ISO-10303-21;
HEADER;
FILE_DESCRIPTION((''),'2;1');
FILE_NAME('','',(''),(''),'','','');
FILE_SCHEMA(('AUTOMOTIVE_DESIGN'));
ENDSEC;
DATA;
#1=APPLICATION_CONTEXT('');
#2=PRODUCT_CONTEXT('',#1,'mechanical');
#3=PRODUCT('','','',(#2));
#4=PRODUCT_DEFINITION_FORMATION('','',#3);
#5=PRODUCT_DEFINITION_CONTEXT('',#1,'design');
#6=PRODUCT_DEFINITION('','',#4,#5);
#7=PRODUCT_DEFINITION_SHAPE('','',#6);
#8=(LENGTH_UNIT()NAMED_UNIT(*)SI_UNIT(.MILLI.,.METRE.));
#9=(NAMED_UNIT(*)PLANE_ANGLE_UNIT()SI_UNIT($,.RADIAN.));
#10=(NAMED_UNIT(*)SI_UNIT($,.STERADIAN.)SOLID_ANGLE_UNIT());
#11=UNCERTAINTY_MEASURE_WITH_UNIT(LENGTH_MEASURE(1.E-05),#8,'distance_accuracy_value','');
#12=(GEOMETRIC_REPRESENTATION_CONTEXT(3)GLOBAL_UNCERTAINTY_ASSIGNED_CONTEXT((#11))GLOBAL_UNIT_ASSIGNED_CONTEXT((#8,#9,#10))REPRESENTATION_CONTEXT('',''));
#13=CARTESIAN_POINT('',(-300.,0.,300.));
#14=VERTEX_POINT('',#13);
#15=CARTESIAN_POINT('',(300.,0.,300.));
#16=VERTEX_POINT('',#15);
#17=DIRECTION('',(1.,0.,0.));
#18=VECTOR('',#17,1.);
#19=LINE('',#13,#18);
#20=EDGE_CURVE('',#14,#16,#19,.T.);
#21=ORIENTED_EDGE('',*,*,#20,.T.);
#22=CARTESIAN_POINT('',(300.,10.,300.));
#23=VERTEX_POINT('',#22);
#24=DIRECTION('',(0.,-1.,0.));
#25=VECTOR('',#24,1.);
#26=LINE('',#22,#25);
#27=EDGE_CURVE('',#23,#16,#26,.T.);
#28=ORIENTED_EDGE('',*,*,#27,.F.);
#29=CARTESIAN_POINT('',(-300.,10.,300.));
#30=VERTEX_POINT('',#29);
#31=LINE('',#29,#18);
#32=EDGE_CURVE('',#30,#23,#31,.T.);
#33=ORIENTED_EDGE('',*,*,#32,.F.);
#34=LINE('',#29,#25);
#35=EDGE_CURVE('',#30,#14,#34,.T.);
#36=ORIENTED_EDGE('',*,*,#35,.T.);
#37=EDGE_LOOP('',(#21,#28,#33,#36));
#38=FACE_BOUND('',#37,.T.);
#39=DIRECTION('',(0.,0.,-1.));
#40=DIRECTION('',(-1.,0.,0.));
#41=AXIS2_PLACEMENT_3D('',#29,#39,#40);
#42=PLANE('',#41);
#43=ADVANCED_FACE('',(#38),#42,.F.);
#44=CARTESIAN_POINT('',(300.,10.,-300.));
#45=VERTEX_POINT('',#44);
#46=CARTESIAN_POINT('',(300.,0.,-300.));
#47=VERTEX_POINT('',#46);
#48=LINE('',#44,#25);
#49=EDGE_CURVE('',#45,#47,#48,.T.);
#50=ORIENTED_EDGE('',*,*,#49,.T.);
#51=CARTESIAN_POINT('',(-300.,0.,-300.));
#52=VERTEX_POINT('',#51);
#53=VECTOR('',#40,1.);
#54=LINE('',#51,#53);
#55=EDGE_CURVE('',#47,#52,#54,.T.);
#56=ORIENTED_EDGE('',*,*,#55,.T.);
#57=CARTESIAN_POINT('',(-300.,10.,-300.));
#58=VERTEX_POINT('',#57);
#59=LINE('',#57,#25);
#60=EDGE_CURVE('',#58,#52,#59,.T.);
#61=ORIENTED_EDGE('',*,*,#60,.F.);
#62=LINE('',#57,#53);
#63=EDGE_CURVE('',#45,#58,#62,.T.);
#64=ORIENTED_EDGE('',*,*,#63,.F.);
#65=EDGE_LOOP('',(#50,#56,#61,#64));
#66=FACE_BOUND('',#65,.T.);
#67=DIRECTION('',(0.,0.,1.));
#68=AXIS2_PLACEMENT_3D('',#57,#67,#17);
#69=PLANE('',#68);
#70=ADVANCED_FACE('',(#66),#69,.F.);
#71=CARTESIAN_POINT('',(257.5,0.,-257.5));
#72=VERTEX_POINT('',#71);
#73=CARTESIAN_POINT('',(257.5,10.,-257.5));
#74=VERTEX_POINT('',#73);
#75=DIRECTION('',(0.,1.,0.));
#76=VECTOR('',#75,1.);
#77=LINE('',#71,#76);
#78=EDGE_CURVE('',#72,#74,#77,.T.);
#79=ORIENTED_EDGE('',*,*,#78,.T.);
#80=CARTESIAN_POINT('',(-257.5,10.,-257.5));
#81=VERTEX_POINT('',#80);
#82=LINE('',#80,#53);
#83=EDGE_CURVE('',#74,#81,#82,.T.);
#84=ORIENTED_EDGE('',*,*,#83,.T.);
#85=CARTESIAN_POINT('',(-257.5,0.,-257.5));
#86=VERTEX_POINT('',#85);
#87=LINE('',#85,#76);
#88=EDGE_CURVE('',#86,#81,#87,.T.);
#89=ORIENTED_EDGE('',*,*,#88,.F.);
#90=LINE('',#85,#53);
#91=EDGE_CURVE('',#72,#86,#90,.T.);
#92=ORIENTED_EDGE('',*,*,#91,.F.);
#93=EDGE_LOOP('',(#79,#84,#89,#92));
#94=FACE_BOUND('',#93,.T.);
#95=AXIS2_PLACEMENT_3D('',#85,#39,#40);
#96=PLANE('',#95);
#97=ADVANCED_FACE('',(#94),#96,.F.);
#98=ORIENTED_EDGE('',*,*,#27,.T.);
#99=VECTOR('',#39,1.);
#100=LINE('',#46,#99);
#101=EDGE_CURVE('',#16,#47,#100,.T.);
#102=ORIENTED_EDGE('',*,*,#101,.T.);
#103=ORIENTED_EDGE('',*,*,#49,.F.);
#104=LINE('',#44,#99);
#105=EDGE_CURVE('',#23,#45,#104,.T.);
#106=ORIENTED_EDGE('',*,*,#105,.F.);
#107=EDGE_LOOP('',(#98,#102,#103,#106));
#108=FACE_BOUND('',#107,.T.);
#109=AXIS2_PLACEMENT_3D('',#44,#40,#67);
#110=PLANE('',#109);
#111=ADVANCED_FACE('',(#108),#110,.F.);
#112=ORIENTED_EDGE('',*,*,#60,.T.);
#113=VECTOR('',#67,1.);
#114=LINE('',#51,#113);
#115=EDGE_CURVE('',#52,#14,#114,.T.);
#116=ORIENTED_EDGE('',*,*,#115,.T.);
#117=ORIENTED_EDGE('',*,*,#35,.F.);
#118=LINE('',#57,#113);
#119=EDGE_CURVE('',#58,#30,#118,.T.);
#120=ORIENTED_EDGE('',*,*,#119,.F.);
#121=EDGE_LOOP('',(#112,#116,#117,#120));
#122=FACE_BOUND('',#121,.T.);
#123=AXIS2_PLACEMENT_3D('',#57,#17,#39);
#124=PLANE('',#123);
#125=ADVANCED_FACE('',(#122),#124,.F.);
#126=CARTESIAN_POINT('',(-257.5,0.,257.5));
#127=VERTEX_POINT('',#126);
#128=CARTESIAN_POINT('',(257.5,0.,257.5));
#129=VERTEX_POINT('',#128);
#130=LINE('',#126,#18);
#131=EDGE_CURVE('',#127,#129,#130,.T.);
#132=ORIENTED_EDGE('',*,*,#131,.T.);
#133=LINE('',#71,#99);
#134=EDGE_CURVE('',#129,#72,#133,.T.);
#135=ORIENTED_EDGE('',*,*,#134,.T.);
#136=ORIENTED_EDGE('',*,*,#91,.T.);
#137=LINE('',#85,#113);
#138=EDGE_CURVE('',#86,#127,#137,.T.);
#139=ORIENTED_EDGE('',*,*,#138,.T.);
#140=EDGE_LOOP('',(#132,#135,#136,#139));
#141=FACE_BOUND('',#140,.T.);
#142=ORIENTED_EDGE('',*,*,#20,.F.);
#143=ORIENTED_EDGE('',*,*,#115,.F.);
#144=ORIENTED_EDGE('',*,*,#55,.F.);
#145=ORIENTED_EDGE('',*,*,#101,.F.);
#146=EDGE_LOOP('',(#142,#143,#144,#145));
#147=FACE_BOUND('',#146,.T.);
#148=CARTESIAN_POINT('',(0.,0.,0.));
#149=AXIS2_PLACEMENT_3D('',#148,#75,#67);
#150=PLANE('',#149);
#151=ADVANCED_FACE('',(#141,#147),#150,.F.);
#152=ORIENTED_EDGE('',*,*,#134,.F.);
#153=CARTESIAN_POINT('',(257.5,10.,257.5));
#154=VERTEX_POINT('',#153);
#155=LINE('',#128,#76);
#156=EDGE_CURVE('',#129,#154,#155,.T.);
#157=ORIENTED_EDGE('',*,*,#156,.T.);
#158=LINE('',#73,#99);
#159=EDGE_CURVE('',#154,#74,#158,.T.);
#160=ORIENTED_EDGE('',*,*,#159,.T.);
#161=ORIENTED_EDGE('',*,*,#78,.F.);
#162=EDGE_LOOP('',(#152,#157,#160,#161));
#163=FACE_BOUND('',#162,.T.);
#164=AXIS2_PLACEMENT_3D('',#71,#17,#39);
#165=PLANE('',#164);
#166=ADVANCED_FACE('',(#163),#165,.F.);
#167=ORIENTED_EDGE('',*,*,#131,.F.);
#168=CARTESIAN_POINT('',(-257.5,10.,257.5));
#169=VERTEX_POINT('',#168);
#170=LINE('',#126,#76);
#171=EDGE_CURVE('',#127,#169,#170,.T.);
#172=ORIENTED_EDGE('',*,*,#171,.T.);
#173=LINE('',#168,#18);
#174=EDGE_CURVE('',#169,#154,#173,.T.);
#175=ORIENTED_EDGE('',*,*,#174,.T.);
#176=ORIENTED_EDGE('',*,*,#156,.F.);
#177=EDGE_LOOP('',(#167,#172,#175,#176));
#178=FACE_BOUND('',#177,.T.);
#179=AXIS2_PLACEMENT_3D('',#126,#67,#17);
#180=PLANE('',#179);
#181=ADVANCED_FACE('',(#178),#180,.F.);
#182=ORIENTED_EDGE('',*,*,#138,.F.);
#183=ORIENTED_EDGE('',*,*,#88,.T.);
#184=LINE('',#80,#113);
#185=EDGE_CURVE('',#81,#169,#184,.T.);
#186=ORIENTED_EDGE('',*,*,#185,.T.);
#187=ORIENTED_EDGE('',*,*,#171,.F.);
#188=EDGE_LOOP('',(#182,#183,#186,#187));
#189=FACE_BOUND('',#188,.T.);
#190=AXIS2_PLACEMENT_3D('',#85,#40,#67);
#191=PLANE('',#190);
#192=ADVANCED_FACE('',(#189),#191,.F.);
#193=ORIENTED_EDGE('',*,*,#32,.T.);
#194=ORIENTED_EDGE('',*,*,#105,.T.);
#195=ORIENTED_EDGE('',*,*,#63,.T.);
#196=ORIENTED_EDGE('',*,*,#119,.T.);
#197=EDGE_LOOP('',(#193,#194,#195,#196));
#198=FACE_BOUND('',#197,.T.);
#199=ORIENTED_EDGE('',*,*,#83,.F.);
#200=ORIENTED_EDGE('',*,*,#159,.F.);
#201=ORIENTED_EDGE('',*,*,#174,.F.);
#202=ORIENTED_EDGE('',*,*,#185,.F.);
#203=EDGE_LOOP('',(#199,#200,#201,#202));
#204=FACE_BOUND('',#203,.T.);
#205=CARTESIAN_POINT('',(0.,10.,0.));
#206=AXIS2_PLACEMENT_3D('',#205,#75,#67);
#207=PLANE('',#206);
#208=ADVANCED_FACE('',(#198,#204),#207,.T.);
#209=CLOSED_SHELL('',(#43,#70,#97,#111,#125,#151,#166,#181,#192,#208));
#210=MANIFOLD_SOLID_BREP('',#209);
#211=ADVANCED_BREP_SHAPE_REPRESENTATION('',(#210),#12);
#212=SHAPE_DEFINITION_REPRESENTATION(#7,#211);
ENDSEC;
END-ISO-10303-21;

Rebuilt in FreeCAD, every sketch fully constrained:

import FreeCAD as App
import Part
import Sketcher
from FreeCAD import Vector
Q = App.Units.Quantity

doc = App.newDocument("Part")
body = doc.addObject("PartDesign::Body", "Body")

sketch1 = body.newObject("Sketcher::SketchObject", "Sketch")
sketch1.AttachmentSupport = (doc.getObject("XZ_Plane"), [""])
sketch1.MapMode = "FlatFace"
sketch1.addGeometry(Part.LineSegment(Vector(-300, -300, 0), Vector(-300, 300, 0)), False)
sketch1.addGeometry(Part.LineSegment(Vector(-300, 300, 0), Vector(300, 300, 0)), False)
sketch1.addGeometry(Part.LineSegment(Vector(300, 300, 0), Vector(300, -300, 0)), False)
sketch1.addGeometry(Part.LineSegment(Vector(300, -300, 0), Vector(-300, -300, 0)), False)
sketch1.addConstraint(Sketcher.Constraint("Coincident", 0, 2, 1, 1))
sketch1.addConstraint(Sketcher.Constraint("Coincident", 1, 2, 2, 1))
sketch1.addConstraint(Sketcher.Constraint("Coincident", 2, 2, 3, 1))
sketch1.addConstraint(Sketcher.Constraint("Coincident", 3, 2, 0, 1))
sketch1.addConstraint(Sketcher.Constraint("Vertical", 0))
sketch1.addConstraint(Sketcher.Constraint("Horizontal", 1))
sketch1.addConstraint(Sketcher.Constraint("Vertical", 2))
sketch1.addConstraint(Sketcher.Constraint("Horizontal", 3))
sketch1.addConstraint(Sketcher.Constraint("Symmetric", 0, 2, 2, 2, -1, 1))
sketch1.addConstraint(Sketcher.Constraint("Equal", 3, 0))
sketch1.addConstraint(Sketcher.Constraint("DistanceX", 1, 1, 1, 2, Q("600 mm")))
pad1 = body.newObject("PartDesign::Pad", "Pad")
pad1.Profile = sketch1
pad1.Length = 10
pad1.Reversed = True

sketch2 = body.newObject("Sketcher::SketchObject", "Sketch001")
sketch2.AttachmentSupport = (doc.getObject("XZ_Plane"), [""])
sketch2.MapMode = "FlatFace"
sketch2.AttachmentOffset = App.Placement(Vector(0, 0, -10), App.Rotation())
sketch2.addGeometry(Part.LineSegment(Vector(-258, -258, 0), Vector(-258, 258, 0)), False)
sketch2.addGeometry(Part.LineSegment(Vector(-258, 258, 0), Vector(258, 258, 0)), False)
sketch2.addGeometry(Part.LineSegment(Vector(258, 258, 0), Vector(258, -258, 0)), False)
sketch2.addGeometry(Part.LineSegment(Vector(258, -258, 0), Vector(-258, -258, 0)), False)
sketch2.addConstraint(Sketcher.Constraint("Coincident", 0, 2, 1, 1))
sketch2.addConstraint(Sketcher.Constraint("Coincident", 1, 2, 2, 1))
sketch2.addConstraint(Sketcher.Constraint("Coincident", 2, 2, 3, 1))
sketch2.addConstraint(Sketcher.Constraint("Coincident", 3, 2, 0, 1))
sketch2.addConstraint(Sketcher.Constraint("Vertical", 0))
sketch2.addConstraint(Sketcher.Constraint("Horizontal", 1))
sketch2.addConstraint(Sketcher.Constraint("Vertical", 2))
sketch2.addConstraint(Sketcher.Constraint("Horizontal", 3))
sketch2.addConstraint(Sketcher.Constraint("Symmetric", 0, 2, 2, 2, -1, 1))
sketch2.addConstraint(Sketcher.Constraint("Equal", 3, 0))
sketch2.addConstraint(Sketcher.Constraint("DistanceX", 1, 1, 1, 2, Q("515 mm")))
pocket1 = body.newObject("PartDesign::Pocket", "Pocket")
pocket1.Profile = sketch2
pocket1.Type = "ThroughAll"
pocket1.Reversed = True

doc.recompute()
